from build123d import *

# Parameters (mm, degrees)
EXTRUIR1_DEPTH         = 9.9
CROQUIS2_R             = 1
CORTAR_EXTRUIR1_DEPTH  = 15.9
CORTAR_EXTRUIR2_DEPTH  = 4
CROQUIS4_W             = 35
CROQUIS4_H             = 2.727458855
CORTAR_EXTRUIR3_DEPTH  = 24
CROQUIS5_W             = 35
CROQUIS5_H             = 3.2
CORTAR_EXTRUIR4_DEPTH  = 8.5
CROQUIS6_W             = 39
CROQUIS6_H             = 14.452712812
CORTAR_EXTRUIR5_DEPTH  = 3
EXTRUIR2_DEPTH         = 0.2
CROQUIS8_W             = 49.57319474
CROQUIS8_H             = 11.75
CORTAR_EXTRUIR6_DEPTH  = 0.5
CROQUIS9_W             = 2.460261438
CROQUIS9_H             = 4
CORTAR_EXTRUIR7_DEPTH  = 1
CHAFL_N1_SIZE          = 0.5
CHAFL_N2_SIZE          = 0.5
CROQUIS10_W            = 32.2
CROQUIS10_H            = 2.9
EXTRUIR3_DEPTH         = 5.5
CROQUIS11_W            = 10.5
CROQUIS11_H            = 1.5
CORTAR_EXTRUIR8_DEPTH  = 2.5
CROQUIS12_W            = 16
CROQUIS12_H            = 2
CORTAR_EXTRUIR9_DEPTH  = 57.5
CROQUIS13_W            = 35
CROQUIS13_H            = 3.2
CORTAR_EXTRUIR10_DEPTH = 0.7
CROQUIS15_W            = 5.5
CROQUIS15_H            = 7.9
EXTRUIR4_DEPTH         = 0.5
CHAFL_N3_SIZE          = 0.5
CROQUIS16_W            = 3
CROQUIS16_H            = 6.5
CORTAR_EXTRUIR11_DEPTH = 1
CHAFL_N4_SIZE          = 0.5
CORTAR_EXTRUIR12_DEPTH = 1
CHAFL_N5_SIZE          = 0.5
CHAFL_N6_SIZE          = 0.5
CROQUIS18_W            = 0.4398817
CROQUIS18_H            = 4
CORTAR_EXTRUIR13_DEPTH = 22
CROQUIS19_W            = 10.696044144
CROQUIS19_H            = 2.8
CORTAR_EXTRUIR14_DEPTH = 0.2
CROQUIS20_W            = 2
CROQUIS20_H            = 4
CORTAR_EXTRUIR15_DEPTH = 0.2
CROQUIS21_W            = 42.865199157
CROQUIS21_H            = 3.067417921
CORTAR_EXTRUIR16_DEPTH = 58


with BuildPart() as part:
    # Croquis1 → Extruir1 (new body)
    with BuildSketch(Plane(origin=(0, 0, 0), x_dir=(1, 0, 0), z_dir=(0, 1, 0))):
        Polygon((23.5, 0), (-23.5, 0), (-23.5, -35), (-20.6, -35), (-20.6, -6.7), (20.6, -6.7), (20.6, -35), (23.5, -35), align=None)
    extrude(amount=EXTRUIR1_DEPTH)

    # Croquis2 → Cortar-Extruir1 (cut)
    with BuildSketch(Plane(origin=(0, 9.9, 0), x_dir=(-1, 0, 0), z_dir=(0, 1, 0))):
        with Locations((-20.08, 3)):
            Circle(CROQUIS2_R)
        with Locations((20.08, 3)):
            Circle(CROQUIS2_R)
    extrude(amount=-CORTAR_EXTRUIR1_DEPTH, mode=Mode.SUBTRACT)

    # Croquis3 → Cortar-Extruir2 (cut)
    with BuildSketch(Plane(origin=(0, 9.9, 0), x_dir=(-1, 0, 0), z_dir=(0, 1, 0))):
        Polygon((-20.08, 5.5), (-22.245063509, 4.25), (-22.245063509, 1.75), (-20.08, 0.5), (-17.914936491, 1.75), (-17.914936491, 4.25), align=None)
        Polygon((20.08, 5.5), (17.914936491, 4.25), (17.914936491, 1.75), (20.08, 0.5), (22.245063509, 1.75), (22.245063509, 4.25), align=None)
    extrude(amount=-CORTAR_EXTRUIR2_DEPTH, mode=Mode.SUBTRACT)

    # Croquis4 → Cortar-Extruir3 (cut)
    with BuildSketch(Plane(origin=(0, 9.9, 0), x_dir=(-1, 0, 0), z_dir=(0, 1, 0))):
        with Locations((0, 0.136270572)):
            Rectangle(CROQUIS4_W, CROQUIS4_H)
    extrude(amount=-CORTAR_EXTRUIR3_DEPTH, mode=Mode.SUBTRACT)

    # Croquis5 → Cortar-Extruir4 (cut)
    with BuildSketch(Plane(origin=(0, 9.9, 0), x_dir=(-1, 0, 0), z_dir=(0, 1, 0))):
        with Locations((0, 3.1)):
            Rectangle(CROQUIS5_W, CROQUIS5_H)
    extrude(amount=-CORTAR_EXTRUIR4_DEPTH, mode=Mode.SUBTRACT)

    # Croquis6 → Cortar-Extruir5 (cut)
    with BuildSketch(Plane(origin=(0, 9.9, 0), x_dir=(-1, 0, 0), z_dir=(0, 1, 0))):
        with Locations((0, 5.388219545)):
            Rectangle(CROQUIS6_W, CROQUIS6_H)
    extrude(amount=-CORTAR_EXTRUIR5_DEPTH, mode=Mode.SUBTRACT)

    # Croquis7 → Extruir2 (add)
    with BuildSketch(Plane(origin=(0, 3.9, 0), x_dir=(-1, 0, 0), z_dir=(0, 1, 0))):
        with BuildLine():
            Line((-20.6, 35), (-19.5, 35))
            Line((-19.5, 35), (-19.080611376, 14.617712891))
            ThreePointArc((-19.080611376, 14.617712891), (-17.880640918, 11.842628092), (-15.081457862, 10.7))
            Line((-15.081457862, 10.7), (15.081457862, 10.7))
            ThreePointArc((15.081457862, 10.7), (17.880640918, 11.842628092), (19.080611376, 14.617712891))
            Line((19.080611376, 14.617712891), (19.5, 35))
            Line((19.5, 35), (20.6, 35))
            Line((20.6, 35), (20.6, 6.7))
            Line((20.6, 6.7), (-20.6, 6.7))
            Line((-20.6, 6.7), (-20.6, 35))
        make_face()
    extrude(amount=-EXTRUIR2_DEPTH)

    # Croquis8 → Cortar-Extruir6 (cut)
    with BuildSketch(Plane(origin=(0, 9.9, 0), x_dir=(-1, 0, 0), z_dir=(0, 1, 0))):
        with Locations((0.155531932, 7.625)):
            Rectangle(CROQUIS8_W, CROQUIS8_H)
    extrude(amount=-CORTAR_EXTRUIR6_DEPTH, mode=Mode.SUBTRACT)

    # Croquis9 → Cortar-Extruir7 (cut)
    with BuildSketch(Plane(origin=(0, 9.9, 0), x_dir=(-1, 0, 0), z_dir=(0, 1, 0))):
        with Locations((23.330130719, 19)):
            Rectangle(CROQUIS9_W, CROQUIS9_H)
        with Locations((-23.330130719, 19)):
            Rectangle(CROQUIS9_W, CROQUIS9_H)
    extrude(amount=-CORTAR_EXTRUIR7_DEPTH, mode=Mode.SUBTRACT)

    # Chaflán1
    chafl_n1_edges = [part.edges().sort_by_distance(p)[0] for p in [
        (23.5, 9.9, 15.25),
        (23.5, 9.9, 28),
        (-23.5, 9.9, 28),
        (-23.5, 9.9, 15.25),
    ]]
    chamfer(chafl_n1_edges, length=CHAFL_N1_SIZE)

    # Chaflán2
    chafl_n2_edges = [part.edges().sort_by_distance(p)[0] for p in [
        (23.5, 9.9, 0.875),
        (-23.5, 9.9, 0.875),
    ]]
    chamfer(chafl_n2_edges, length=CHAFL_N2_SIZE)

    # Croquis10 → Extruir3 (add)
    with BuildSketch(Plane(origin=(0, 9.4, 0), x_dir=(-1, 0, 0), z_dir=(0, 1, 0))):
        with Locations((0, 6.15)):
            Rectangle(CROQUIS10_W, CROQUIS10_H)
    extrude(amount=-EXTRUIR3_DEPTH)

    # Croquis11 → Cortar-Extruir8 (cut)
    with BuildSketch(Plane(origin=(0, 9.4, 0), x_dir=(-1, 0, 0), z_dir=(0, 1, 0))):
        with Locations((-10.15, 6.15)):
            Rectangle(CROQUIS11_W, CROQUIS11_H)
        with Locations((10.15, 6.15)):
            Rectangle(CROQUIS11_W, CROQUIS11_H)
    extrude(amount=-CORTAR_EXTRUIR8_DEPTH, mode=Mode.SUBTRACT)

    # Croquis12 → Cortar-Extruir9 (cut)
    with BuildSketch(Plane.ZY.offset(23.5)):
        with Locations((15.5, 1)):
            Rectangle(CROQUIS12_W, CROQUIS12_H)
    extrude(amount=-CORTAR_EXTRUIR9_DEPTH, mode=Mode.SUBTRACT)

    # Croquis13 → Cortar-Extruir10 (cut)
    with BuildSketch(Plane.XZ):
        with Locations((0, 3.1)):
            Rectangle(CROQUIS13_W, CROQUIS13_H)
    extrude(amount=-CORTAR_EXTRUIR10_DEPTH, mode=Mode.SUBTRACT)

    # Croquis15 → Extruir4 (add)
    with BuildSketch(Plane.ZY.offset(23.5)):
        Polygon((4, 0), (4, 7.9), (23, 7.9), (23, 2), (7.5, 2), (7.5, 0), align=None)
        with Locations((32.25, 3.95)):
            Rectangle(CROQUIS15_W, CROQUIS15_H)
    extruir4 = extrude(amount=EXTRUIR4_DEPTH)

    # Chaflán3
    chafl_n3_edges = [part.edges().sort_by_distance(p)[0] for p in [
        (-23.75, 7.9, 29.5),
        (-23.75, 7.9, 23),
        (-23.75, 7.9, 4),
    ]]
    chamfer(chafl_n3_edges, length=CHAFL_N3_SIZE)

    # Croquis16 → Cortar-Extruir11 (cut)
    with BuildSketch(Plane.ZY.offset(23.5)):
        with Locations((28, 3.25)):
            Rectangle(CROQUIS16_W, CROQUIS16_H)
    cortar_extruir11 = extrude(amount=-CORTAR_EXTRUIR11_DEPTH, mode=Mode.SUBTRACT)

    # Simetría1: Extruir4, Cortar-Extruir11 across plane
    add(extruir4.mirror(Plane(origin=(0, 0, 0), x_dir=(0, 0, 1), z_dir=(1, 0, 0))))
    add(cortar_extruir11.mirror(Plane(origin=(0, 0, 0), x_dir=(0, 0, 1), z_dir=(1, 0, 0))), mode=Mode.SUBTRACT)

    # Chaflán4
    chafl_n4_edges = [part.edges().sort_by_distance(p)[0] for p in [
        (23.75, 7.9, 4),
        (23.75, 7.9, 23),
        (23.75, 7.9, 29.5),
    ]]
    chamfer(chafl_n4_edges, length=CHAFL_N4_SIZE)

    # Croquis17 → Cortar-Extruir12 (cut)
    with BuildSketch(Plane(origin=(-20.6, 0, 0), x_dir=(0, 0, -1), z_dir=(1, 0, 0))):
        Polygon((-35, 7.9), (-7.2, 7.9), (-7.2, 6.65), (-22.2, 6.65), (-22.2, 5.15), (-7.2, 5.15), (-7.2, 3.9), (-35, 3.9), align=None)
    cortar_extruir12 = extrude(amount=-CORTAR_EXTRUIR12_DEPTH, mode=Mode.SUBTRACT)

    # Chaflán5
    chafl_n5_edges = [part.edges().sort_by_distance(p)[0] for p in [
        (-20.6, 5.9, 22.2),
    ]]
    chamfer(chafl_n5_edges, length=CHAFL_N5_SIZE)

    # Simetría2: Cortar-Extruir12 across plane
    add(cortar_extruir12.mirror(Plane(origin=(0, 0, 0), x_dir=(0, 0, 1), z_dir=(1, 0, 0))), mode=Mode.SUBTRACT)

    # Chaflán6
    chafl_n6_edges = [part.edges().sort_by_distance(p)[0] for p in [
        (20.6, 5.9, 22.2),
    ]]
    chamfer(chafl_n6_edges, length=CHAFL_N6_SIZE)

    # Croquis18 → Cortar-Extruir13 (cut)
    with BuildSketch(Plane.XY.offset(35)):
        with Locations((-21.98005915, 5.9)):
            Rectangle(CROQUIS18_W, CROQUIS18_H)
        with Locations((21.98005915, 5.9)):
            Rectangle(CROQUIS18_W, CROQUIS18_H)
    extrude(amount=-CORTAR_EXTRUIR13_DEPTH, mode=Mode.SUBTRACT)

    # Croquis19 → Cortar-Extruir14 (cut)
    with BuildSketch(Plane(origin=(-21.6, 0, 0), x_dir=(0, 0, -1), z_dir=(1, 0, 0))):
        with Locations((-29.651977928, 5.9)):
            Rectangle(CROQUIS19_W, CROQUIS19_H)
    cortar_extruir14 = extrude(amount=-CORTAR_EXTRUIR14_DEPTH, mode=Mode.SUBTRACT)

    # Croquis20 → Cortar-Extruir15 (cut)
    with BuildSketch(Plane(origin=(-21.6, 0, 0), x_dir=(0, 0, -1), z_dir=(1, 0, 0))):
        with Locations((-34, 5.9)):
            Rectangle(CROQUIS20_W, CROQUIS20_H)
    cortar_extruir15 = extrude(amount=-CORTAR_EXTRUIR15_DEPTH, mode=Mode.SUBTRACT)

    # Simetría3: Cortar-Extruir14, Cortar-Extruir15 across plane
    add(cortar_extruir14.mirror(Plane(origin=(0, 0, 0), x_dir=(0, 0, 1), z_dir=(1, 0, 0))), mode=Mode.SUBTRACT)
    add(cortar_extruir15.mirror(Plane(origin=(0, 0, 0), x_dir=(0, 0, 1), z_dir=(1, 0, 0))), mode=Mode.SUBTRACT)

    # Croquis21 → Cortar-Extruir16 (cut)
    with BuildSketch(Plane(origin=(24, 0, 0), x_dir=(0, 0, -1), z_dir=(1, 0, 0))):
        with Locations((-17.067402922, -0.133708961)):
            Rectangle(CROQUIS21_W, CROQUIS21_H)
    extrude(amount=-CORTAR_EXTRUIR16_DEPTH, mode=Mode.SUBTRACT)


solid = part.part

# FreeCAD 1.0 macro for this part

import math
import FreeCAD as App
import Part
import Sketcher

V = App.Vector
Q = App.Units.Quantity


def edges_at(feature, points):
    """Names of the edges that pass closest to the given points."""
    edges = feature.Shape.Edges
    near = lambda p: min(range(len(edges)), key=lambda i: edges[i].distToShape(Part.Vertex(*p))[0])
    return sorted({f"Edge{near(p) + 1}" for p in points})

doc = App.newDocument("Part")
body = doc.addObject("PartDesign::Body", "Body")

# Sketch on XZ plane
sketch1 = body.newObject("Sketcher::SketchObject", "Sketch")
sketch1.AttachmentSupport = (doc.getObject("XZ_Plane"), [""])
sketch1.MapMode = "FlatFace"
sketch1.addGeometry(Part.LineSegment(V(23.5, 0, 0), V(-23.5, 0, 0)), False)
sketch1.addGeometry(Part.LineSegment(V(-23.5, 0, 0), V(-23.5, 35, 0)), False)
sketch1.addGeometry(Part.LineSegment(V(-23.5, 35, 0), V(-20.6, 35, 0)), False)
sketch1.addGeometry(Part.LineSegment(V(-20.6, 35, 0), V(-20.6, 6.7, 0)), False)
sketch1.addGeometry(Part.LineSegment(V(-20.6, 6.7, 0), V(20.6, 6.7, 0)), False)
sketch1.addGeometry(Part.LineSegment(V(20.6, 6.7, 0), V(20.6, 35, 0)), False)
sketch1.addGeometry(Part.LineSegment(V(20.6, 35, 0), V(23.5, 35, 0)), False)
sketch1.addGeometry(Part.LineSegment(V(23.5, 35, 0), V(23.5, 0, 0)), False)
sketch1.addConstraint(Sketcher.Constraint("Coincident", 0, 2, 1, 1))
sketch1.addConstraint(Sketcher.Constraint("Coincident", 1, 2, 2, 1))
sketch1.addConstraint(Sketcher.Constraint("Coincident", 2, 2, 3, 1))
sketch1.addConstraint(Sketcher.Constraint("Coincident", 3, 2, 4, 1))
sketch1.addConstraint(Sketcher.Constraint("Coincident", 4, 2, 5, 1))
sketch1.addConstraint(Sketcher.Constraint("Coincident", 5, 2, 6, 1))
sketch1.addConstraint(Sketcher.Constraint("Coincident", 6, 2, 7, 1))
sketch1.addConstraint(Sketcher.Constraint("Coincident", 7, 2, 0, 1))
sketch1.addConstraint(Sketcher.Constraint("Horizontal", 0))
sketch1.addConstraint(Sketcher.Constraint("Vertical", 1))
sketch1.addConstraint(Sketcher.Constraint("Horizontal", 2))
sketch1.addConstraint(Sketcher.Constraint("Vertical", 3))
sketch1.addConstraint(Sketcher.Constraint("Horizontal", 4))
sketch1.addConstraint(Sketcher.Constraint("Vertical", 5))
sketch1.addConstraint(Sketcher.Constraint("Horizontal", 6))
sketch1.addConstraint(Sketcher.Constraint("Vertical", 7))
sketch1.addConstraint(Sketcher.Constraint("Symmetric", 0, 2, 7, 2, -1, 1))
sketch1.addConstraint(Sketcher.Constraint("Symmetric", 2, 2, 5, 2, -2))
sketch1.addConstraint(Sketcher.Constraint("DistanceX", 0, 2, 0, 1, 47.0))
sketch1.addConstraint(Sketcher.Constraint("DistanceY", 1, 1, 1, 2, 35.0))
sketch1.addConstraint(Sketcher.Constraint("DistanceX", 2, 1, 2, 2, 2.9))
sketch1.addConstraint(Sketcher.Constraint("DistanceY", 3, 2, 3, 1, 28.3))
pad1 = body.newObject("PartDesign::Pad", "Pad")
pad1.Profile = sketch1
pad1.Length = 9.9
pad1.Reversed = True

# Sketch on XZ plane
sketch2 = body.newObject("Sketcher::SketchObject", "Sketch001")
sketch2.AttachmentSupport = (doc.getObject("XZ_Plane"), [""])
sketch2.MapMode = "FlatFace"
sketch2.AttachmentOffset = App.Placement(V(0, 0, -9.9), App.Rotation())
sketch2.addGeometry(Part.Circle(V(20.08, 3, 0), V(0, 0, 1), 1), False)
sketch2.addGeometry(Part.Circle(V(-20.08, 3, 0), V(0, 0, 1), 1), False)
sketch2.addConstraint(Sketcher.Constraint("Equal", 0, 1))
sketch2.addConstraint(Sketcher.Constraint("Symmetric", 0, 3, 1, 3, -2))
sketch2.addConstraint(Sketcher.Constraint("Diameter", 0, 2.0))
sketch2.addConstraint(Sketcher.Constraint("DistanceY", -1, 1, 0, 3, 3.0))
sketch2.addConstraint(Sketcher.Constraint("DistanceX", -1, 1, 0, 3, 20.08))
pocket1 = body.newObject("PartDesign::Pocket", "Pocket")
pocket1.Profile = sketch2
pocket1.Length = 15.9
pocket1.Reversed = True

# Sketch on XZ plane
sketch3 = body.newObject("Sketcher::SketchObject", "Sketch002")
sketch3.AttachmentSupport = (doc.getObject("XZ_Plane"), [""])
sketch3.MapMode = "FlatFace"
sketch3.AttachmentOffset = App.Placement(V(0, 0, -9.9), App.Rotation())
sketch3.addGeometry(Part.LineSegment(V(20.08, 5.5, 0), V(22.245064, 4.25, 0)), False)
sketch3.addGeometry(Part.LineSegment(V(22.245064, 4.25, 0), V(22.245064, 1.75, 0)), False)
sketch3.addGeometry(Part.LineSegment(V(22.245064, 1.75, 0), V(20.08, 0.5, 0)), False)
sketch3.addGeometry(Part.LineSegment(V(20.08, 0.5, 0), V(17.914936, 1.75, 0)), False)
sketch3.addGeometry(Part.LineSegment(V(17.914936, 1.75, 0), V(17.914936, 4.25, 0)), False)
sketch3.addGeometry(Part.LineSegment(V(17.914936, 4.25, 0), V(20.08, 5.5, 0)), False)
sketch3.addGeometry(Part.LineSegment(V(-20.08, 5.5, 0), V(-17.914936, 4.25, 0)), False)
sketch3.addGeometry(Part.LineSegment(V(-17.914936, 4.25, 0), V(-17.914936, 1.75, 0)), False)
sketch3.addGeometry(Part.LineSegment(V(-17.914936, 1.75, 0), V(-20.08, 0.5, 0)), False)
sketch3.addGeometry(Part.LineSegment(V(-20.08, 0.5, 0), V(-22.245064, 1.75, 0)), False)
sketch3.addGeometry(Part.LineSegment(V(-22.245064, 1.75, 0), V(-22.245064, 4.25, 0)), False)
sketch3.addGeometry(Part.LineSegment(V(-22.245064, 4.25, 0), V(-20.08, 5.5, 0)), False)
sketch3.addConstraint(Sketcher.Constraint("Coincident", 0, 2, 1, 1))
sketch3.addConstraint(Sketcher.Constraint("Coincident", 1, 2, 2, 1))
sketch3.addConstraint(Sketcher.Constraint("Coincident", 2, 2, 3, 1))
sketch3.addConstraint(Sketcher.Constraint("Coincident", 3, 2, 4, 1))
sketch3.addConstraint(Sketcher.Constraint("Coincident", 4, 2, 5, 1))
sketch3.addConstraint(Sketcher.Constraint("Coincident", 5, 2, 0, 1))
sketch3.addConstraint(Sketcher.Constraint("Coincident", 6, 2, 7, 1))
sketch3.addConstraint(Sketcher.Constraint("Coincident", 7, 2, 8, 1))
sketch3.addConstraint(Sketcher.Constraint("Coincident", 8, 2, 9, 1))
sketch3.addConstraint(Sketcher.Constraint("Coincident", 9, 2, 10, 1))
sketch3.addConstraint(Sketcher.Constraint("Coincident", 10, 2, 11, 1))
sketch3.addConstraint(Sketcher.Constraint("Coincident", 11, 2, 6, 1))
sketch3.addConstraint(Sketcher.Constraint("Vertical", 1))
sketch3.addConstraint(Sketcher.Constraint("Vertical", 4))
sketch3.addConstraint(Sketcher.Constraint("Vertical", 7))
sketch3.addConstraint(Sketcher.Constraint("Vertical", 10))
sketch3.addConstraint(Sketcher.Constraint("Symmetric", 4, 2, 6, 2, -2))
sketch3.addConstraint(Sketcher.Constraint("Symmetric", 2, 2, 8, 2, -2))
sketch3.addConstraint(Sketcher.Constraint("Symmetric", 1, 2, 9, 2, -2))
sketch3.addConstraint(Sketcher.Constraint("Symmetric", 5, 2, 11, 2, -2))
sketch3.addConstraint(Sketcher.Constraint("Parallel", 0, 3))
sketch3.addConstraint(Sketcher.Constraint("Parallel", 2, 5))
sketch3.addConstraint(Sketcher.Constraint("Parallel", 3, 6))
sketch3.addConstraint(Sketcher.Constraint("Parallel", 5, 8))
sketch3.addConstraint(Sketcher.Constraint("Parallel", 8, 11))
sketch3.addConstraint(Sketcher.Constraint("Horizontal", 1, 2, 3, 2))
sketch3.addConstraint(Sketcher.Constraint("Horizontal", 0, 2, 4, 2))
sketch3.addConstraint(Sketcher.Constraint("Angle", 0, Q("-30 deg")))
sketch3.addConstraint(Sketcher.Constraint("DistanceY", 1, 2, 1, 1, 2.5))
sketch3.addConstraint(Sketcher.Constraint("DistanceY", 2, 2, 5, 2, 5.0))
sketch3.addConstraint(Sketcher.Constraint("DistanceY", -1, 1, 2, 2, 0.5))
sketch3.addConstraint(Sketcher.Constraint("DistanceX", -1, 1, 2, 2, 20.08))
pocket2 = body.newObject("PartDesign::Pocket", "Pocket001")
pocket2.Profile = sketch3
pocket2.Length = 4
pocket2.Reversed = True

# Sketch on XZ plane
sketch4 = body.newObject("Sketcher::SketchObject", "Sketch003")
sketch4.AttachmentSupport = (doc.getObject("XZ_Plane"), [""])
sketch4.MapMode = "FlatFace"
sketch4.AttachmentOffset = App.Placement(V(0, 0, -9.9), App.Rotation())
sketch4.addGeometry(Part.LineSegment(V(17.5, 1.5, 0), V(17.5, -1.227459, 0)), False)
sketch4.addGeometry(Part.LineSegment(V(17.5, -1.227459, 0), V(-17.5, -1.227459, 0)), False)
sketch4.addGeometry(Part.LineSegment(V(-17.5, -1.227459, 0), V(-17.5, 1.5, 0)), False)
sketch4.addGeometry(Part.LineSegment(V(-17.5, 1.5, 0), V(17.5, 1.5, 0)), False)
sketch4.addConstraint(Sketcher.Constraint("Coincident", 0, 2, 1, 1))
sketch4.addConstraint(Sketcher.Constraint("Coincident", 1, 2, 2, 1))
sketch4.addConstraint(Sketcher.Constraint("Coincident", 2, 2, 3, 1))
sketch4.addConstraint(Sketcher.Constraint("Coincident", 3, 2, 0, 1))
sketch4.addConstraint(Sketcher.Constraint("Vertical", 0))
sketch4.addConstraint(Sketcher.Constraint("Horizontal", 1))
sketch4.addConstraint(Sketcher.Constraint("Vertical", 2))
sketch4.addConstraint(Sketcher.Constraint("Horizontal", 3))
sketch4.addConstraint(Sketcher.Constraint("DistanceX", 1, 2, 1, 1, 35.0))
sketch4.addConstraint(Sketcher.Constraint("DistanceX", -1, 1, 0, 2, 17.5))
sketch4.addConstraint(Sketcher.Constraint("DistanceY", -1, 1, 2, 2, 1.5))
sketch4.addConstraint(Sketcher.Constraint("DistanceY", 0, 2, 0, 1, 2.727459))
pocket3 = body.newObject("PartDesign::Pocket", "Pocket002")
pocket3.Profile = sketch4
pocket3.Length = 24
pocket3.Reversed = True

# Sketch on XZ plane
sketch5 = body.newObject("Sketcher::SketchObject", "Sketch004")
sketch5.AttachmentSupport = (doc.getObject("XZ_Plane"), [""])
sketch5.MapMode = "FlatFace"
sketch5.AttachmentOffset = App.Placement(V(0, 0, -9.9), App.Rotation())
sketch5.addGeometry(Part.LineSegment(V(17.5, 4.7, 0), V(17.5, 1.5, 0)), False)
sketch5.addGeometry(Part.LineSegment(V(17.5, 1.5, 0), V(-17.5, 1.5, 0)), False)
sketch5.addGeometry(Part.LineSegment(V(-17.5, 1.5, 0), V(-17.5, 4.7, 0)), False)
sketch5.addGeometry(Part.LineSegment(V(-17.5, 4.7, 0), V(17.5, 4.7, 0)), False)
sketch5.addConstraint(Sketcher.Constraint("Coincident", 0, 2, 1, 1))
sketch5.addConstraint(Sketcher.Constraint("Coincident", 1, 2, 2, 1))
sketch5.addConstraint(Sketcher.Constraint("Coincident", 2, 2, 3, 1))
sketch5.addConstraint(Sketcher.Constraint("Coincident", 3, 2, 0, 1))
sketch5.addConstraint(Sketcher.Constraint("Vertical", 0))
sketch5.addConstraint(Sketcher.Constraint("Horizontal", 1))
sketch5.addConstraint(Sketcher.Constraint("Vertical", 2))
sketch5.addConstraint(Sketcher.Constraint("Horizontal", 3))
sketch5.addConstraint(Sketcher.Constraint("DistanceX", 1, 2, 1, 1, 35.0))
sketch5.addConstraint(Sketcher.Constraint("DistanceY", 0, 2, 0, 1, 3.2))
sketch5.addConstraint(Sketcher.Constraint("DistanceX", -1, 1, 0, 2, 17.5))
sketch5.addConstraint(Sketcher.Constraint("DistanceY", -1, 1, 0, 2, 1.5))
pocket4 = body.newObject("PartDesign::Pocket", "Pocket003")
pocket4.Profile = sketch5
pocket4.Length = 8.5
pocket4.Reversed = True

# Sketch on XZ plane
sketch6 = body.newObject("Sketcher::SketchObject", "Sketch005")
sketch6.AttachmentSupport = (doc.getObject("XZ_Plane"), [""])
sketch6.MapMode = "FlatFace"
sketch6.AttachmentOffset = App.Placement(V(0, 0, -9.9), App.Rotation())
sketch6.addGeometry(Part.LineSegment(V(19.5, 12.614576, 0), V(19.5, -1.838137, 0)), False)
sketch6.addGeometry(Part.LineSegment(V(19.5, -1.838137, 0), V(-19.5, -1.838137, 0)), False)
sketch6.addGeometry(Part.LineSegment(V(-19.5, -1.838137, 0), V(-19.5, 12.614576, 0)), False)
sketch6.addGeometry(Part.LineSegment(V(-19.5, 12.614576, 0), V(19.5, 12.614576, 0)), False)
sketch6.addConstraint(Sketcher.Constraint("Coincident", 0, 2, 1, 1))
sketch6.addConstraint(Sketcher.Constraint("Coincident", 1, 2, 2, 1))
sketch6.addConstraint(Sketcher.Constraint("Coincident", 2, 2, 3, 1))
sketch6.addConstraint(Sketcher.Constraint("Coincident", 3, 2, 0, 1))
sketch6.addConstraint(Sketcher.Constraint("Vertical", 0))
sketch6.addConstraint(Sketcher.Constraint("Horizontal", 1))
sketch6.addConstraint(Sketcher.Constraint("Vertical", 2))
sketch6.addConstraint(Sketcher.Constraint("Horizontal", 3))
sketch6.addConstraint(Sketcher.Constraint("DistanceX", 1, 2, 1, 1, 39.0))
sketch6.addConstraint(Sketcher.Constraint("DistanceX", -1, 1, 0, 2, 19.5))
sketch6.addConstraint(Sketcher.Constraint("DistanceY", 0, 2, 0, 1, 14.452713))
sketch6.addConstraint(Sketcher.Constraint("DistanceY", 0, 2, -1, 1, 1.838137))
pocket5 = body.newObject("PartDesign::Pocket", "Pocket004")
pocket5.Profile = sketch6
pocket5.Length = 3
pocket5.Reversed = True

# Sketch on XZ plane
sketch7 = body.newObject("Sketcher::SketchObject", "Sketch006")
sketch7.AttachmentSupport = (doc.getObject("XZ_Plane"), [""])
sketch7.MapMode = "FlatFace"
sketch7.AttachmentOffset = App.Placement(V(0, 0, -3.9), App.Rotation())
sketch7.addGeometry(Part.LineSegment(V(19.5, 35, 0), V(20.6, 35, 0)), False)
sketch7.addGeometry(Part.LineSegment(V(20.6, 35, 0), V(20.6, 6.7, 0)), False)
sketch7.addGeometry(Part.LineSegment(V(20.6, 6.7, 0), V(-20.6, 6.7, 0)), False)
sketch7.addGeometry(Part.LineSegment(V(-20.6, 6.7, 0), V(-20.6, 35, 0)), False)
sketch7.addGeometry(Part.LineSegment(V(-20.6, 35, 0), V(-19.5, 35, 0)), False)
sketch7.addGeometry(Part.LineSegment(V(-19.5, 35, 0), V(-19.080611, 14.617713, 0)), False)
sketch7.addGeometry(Part.ArcOfCircle(Part.Circle(V(-15.081458, 14.7, 0), V(0, 0, 1), 4), math.radians(-178.821241), math.radians(-90)), False)
sketch7.addGeometry(Part.LineSegment(V(-15.081458, 10.7, 0), V(15.081458, 10.7, 0)), False)
sketch7.addGeometry(Part.ArcOfCircle(Part.Circle(V(15.081458, 14.7, 0), V(0, 0, 1), 4), math.radians(-90), math.radians(-1.178759)), False)
sketch7.addGeometry(Part.LineSegment(V(19.080611, 14.617713, 0), V(19.5, 35, 0)), False)
sketch7.addConstraint(Sketcher.Constraint("Coincident", 0, 2, 1, 1))
sketch7.addConstraint(Sketcher.Constraint("Coincident", 1, 2, 2, 1))
sketch7.addConstraint(Sketcher.Constraint("Coincident", 2, 2, 3, 1))
sketch7.addConstraint(Sketcher.Constraint("Coincident", 3, 2, 4, 1))
sketch7.addConstraint(Sketcher.Constraint("Coincident", 4, 2, 5, 1))
sketch7.addConstraint(Sketcher.Constraint("Tangent", 5, 2, 6, 1))
sketch7.addConstraint(Sketcher.Constraint("Tangent", 6, 2, 7, 1))
sketch7.addConstraint(Sketcher.Constraint("Tangent", 7, 2, 8, 1))
sketch7.addConstraint(Sketcher.Constraint("Tangent", 8, 2, 9, 1))
sketch7.addConstraint(Sketcher.Constraint("Coincident", 9, 2, 0, 1))
sketch7.addConstraint(Sketcher.Constraint("Horizontal", 0))
sketch7.addConstraint(Sketcher.Constraint("Vertical", 1))
sketch7.addConstraint(Sketcher.Constraint("Horizontal", 2))
sketch7.addConstraint(Sketcher.Constraint("Vertical", 3))
sketch7.addConstraint(Sketcher.Constraint("Horizontal", 4))
sketch7.addConstraint(Sketcher.Constraint("Horizontal", 7))
sketch7.addConstraint(Sketcher.Constraint("Equal", 6, 8))
sketch7.addConstraint(Sketcher.Constraint("Symmetric", 0, 2, 3, 2, -2))
sketch7.addConstraint(Sketcher.Constraint("Symmetric", 5, 2, 8, 2, -2))
sketch7.addConstraint(Sketcher.Constraint("Radius", 6, 4.0))
sketch7.addConstraint(Sketcher.Constraint("DistanceX", 0, 1, 0, 2, 1.1))
sketch7.addConstraint(Sketcher.Constraint("DistanceX", 2, 2, 2, 1, 41.2))
sketch7.addConstraint(Sketcher.Constraint("DistanceY", 1, 2, 1, 1, 28.3))
sketch7.addConstraint(Sketcher.Constraint("DistanceY", -1, 1, 0, 2, 35.0))
sketch7.addConstraint(Sketcher.Constraint("DistanceY", 1, 2, 8, 3, 8.0))
sketch7.addConstraint(Sketcher.Constraint("Distance", 5, 20.386601))
pad2 = body.newObject("PartDesign::Pad", "Pad001")
pad2.Profile = sketch7
pad2.Length = 0.2

# Sketch on XZ plane
sketch8 = body.newObject("Sketcher::SketchObject", "Sketch007")
sketch8.AttachmentSupport = (doc.getObject("XZ_Plane"), [""])
sketch8.MapMode = "FlatFace"
sketch8.AttachmentOffset = App.Placement(V(0, 0, -9.9), App.Rotation())
sketch8.addGeometry(Part.LineSegment(V(24.631065, 13.5, 0), V(24.631065, 1.75, 0)), False)
sketch8.addGeometry(Part.LineSegment(V(24.631065, 1.75, 0), V(-24.942129, 1.75, 0)), False)
sketch8.addGeometry(Part.LineSegment(V(-24.942129, 1.75, 0), V(-24.942129, 13.5, 0)), False)
sketch8.addGeometry(Part.LineSegment(V(-24.942129, 13.5, 0), V(24.631065, 13.5, 0)), False)
sketch8.addConstraint(Sketcher.Constraint("Coincident", 0, 2, 1, 1))
sketch8.addConstraint(Sketcher.Constraint("Coincident", 1, 2, 2, 1))
sketch8.addConstraint(Sketcher.Constraint("Coincident", 2, 2, 3, 1))
sketch8.addConstraint(Sketcher.Constraint("Coincident", 3, 2, 0, 1))
sketch8.addConstraint(Sketcher.Constraint("Vertical", 0))
sketch8.addConstraint(Sketcher.Constraint("Horizontal", 1))
sketch8.addConstraint(Sketcher.Constraint("Vertical", 2))
sketch8.addConstraint(Sketcher.Constraint("Horizontal", 3))
sketch8.addConstraint(Sketcher.Constraint("DistanceY", 0, 2, 0, 1, 11.75))
sketch8.addConstraint(Sketcher.Constraint("DistanceY", -1, 1, 2, 2, 13.5))
sketch8.addConstraint(Sketcher.Constraint("DistanceX", 1, 2, 1, 1, 49.573195))
sketch8.addConstraint(Sketcher.Constraint("DistanceX", 1, 2, -1, 1, 24.942129))
pocket6 = body.newObject("PartDesign::Pocket", "Pocket005")
pocket6.Profile = sketch8
pocket6.Length = 0.5
pocket6.Reversed = True

# Sketch on XZ plane
sketch9 = body.newObject("Sketcher::SketchObject", "Sketch008")
sketch9.AttachmentSupport = (doc.getObject("XZ_Plane"), [""])
sketch9.MapMode = "FlatFace"
sketch9.AttachmentOffset = App.Placement(V(0, 0, -9.9), App.Rotation())
sketch9.addGeometry(Part.LineSegment(V(-22.1, 21, 0), V(-22.1, 17, 0)), False)
sketch9.addGeometry(Part.LineSegment(V(-22.1, 17, 0), V(-24.560261, 17, 0)), False)
sketch9.addGeometry(Part.LineSegment(V(-24.560261, 17, 0), V(-24.560261, 21, 0)), False)
sketch9.addGeometry(Part.LineSegment(V(-24.560261, 21, 0), V(-22.1, 21, 0)), False)
sketch9.addGeometry(Part.LineSegment(V(24.560261, 21, 0), V(24.560261, 17, 0)), False)
sketch9.addGeometry(Part.LineSegment(V(24.560261, 17, 0), V(22.1, 17, 0)), False)
sketch9.addGeometry(Part.LineSegment(V(22.1, 17, 0), V(22.1, 21, 0)), False)
sketch9.addGeometry(Part.LineSegment(V(22.1, 21, 0), V(24.560261, 21, 0)), False)
sketch9.addConstraint(Sketcher.Constraint("Coincident", 0, 2, 1, 1))
sketch9.addConstraint(Sketcher.Constraint("Coincident", 1, 2, 2, 1))
sketch9.addConstraint(Sketcher.Constraint("Coincident", 2, 2, 3, 1))
sketch9.addConstraint(Sketcher.Constraint("Coincident", 3, 2, 0, 1))
sketch9.addConstraint(Sketcher.Constraint("Coincident", 4, 2, 5, 1))
sketch9.addConstraint(Sketcher.Constraint("Coincident", 5, 2, 6, 1))
sketch9.addConstraint(Sketcher.Constraint("Coincident", 6, 2, 7, 1))
sketch9.addConstraint(Sketcher.Constraint("Coincident", 7, 2, 4, 1))
sketch9.addConstraint(Sketcher.Constraint("Vertical", 0))
sketch9.addConstraint(Sketcher.Constraint("Horizontal", 1))
sketch9.addConstraint(Sketcher.Constraint("Vertical", 2))
sketch9.addConstraint(Sketcher.Constraint("Horizontal", 3))
sketch9.addConstraint(Sketcher.Constraint("Vertical", 4))
sketch9.addConstraint(Sketcher.Constraint("Horizontal", 5))
sketch9.addConstraint(Sketcher.Constraint("Vertical", 6))
sketch9.addConstraint(Sketcher.Constraint("Horizontal", 7))
sketch9.addConstraint(Sketcher.Constraint("Symmetric", 1, 2, 4, 2, -2))
sketch9.addConstraint(Sketcher.Constraint("Symmetric", 3, 2, 6, 2, -2))
sketch9.addConstraint(Sketcher.Constraint("DistanceY", 0, 2, 0, 1, 4.0))
sketch9.addConstraint(Sketcher.Constraint("DistanceY", -1, 1, 0, 2, 17.0))
sketch9.addConstraint(Sketcher.Constraint("DistanceX", 0, 2, -1, 1, 22.1))
sketch9.addConstraint(Sketcher.Constraint("DistanceX", 1, 2, 1, 1, 2.460261))
pocket7 = body.newObject("PartDesign::Pocket", "Pocket006")
pocket7.Profile = sketch9
pocket7.Length = 1
pocket7.Reversed = True
doc.recompute()

chamfer = body.newObject("PartDesign::Chamfer", "Chamfer")
chamfer.Base = (pocket7, edges_at(pocket7, [
    (23.5, 9.9, 15.25),
    (23.5, 9.9, 28),
    (-23.5, 9.9, 28),
    (-23.5, 9.9, 15.25),
]))
chamfer.Size = 0.5
doc.recompute()

chamfer2 = body.newObject("PartDesign::Chamfer", "Chamfer001")
chamfer2.Base = (chamfer, edges_at(chamfer, [(23.5, 9.9, 0.875), (-23.5, 9.9, 0.875)]))
chamfer2.Size = 0.5

# Sketch on XZ plane
sketch10 = body.newObject("Sketcher::SketchObject", "Sketch009")
sketch10.AttachmentSupport = (doc.getObject("XZ_Plane"), [""])
sketch10.MapMode = "FlatFace"
sketch10.AttachmentOffset = App.Placement(V(0, 0, -9.4), App.Rotation())
sketch10.addGeometry(Part.LineSegment(V(16.1, 7.6, 0), V(16.1, 4.7, 0)), False)
sketch10.addGeometry(Part.LineSegment(V(16.1, 4.7, 0), V(-16.1, 4.7, 0)), False)
sketch10.addGeometry(Part.LineSegment(V(-16.1, 4.7, 0), V(-16.1, 7.6, 0)), False)
sketch10.addGeometry(Part.LineSegment(V(-16.1, 7.6, 0), V(16.1, 7.6, 0)), False)
sketch10.addConstraint(Sketcher.Constraint("Coincident", 0, 2, 1, 1))
sketch10.addConstraint(Sketcher.Constraint("Coincident", 1, 2, 2, 1))
sketch10.addConstraint(Sketcher.Constraint("Coincident", 2, 2, 3, 1))
sketch10.addConstraint(Sketcher.Constraint("Coincident", 3, 2, 0, 1))
sketch10.addConstraint(Sketcher.Constraint("Vertical", 0))
sketch10.addConstraint(Sketcher.Constraint("Horizontal", 1))
sketch10.addConstraint(Sketcher.Constraint("Vertical", 2))
sketch10.addConstraint(Sketcher.Constraint("Horizontal", 3))
sketch10.addConstraint(Sketcher.Constraint("DistanceX", 1, 2, 1, 1, 32.2))
sketch10.addConstraint(Sketcher.Constraint("DistanceY", 0, 2, 0, 1, 2.9))
sketch10.addConstraint(Sketcher.Constraint("DistanceX", -1, 1, 0, 2, 16.1))
sketch10.addConstraint(Sketcher.Constraint("DistanceY", -1, 1, 0, 2, 4.7))
pad3 = body.newObject("PartDesign::Pad", "Pad002")
pad3.Profile = sketch10
pad3.Length = 5.5

# Sketch on XZ plane
sketch11 = body.newObject("Sketcher::SketchObject", "Sketch010")
sketch11.AttachmentSupport = (doc.getObject("XZ_Plane"), [""])
sketch11.MapMode = "FlatFace"
sketch11.AttachmentOffset = App.Placement(V(0, 0, -9.4), App.Rotation())
sketch11.addGeometry(Part.LineSegment(V(15.4, 6.9, 0), V(15.4, 5.4, 0)), False)
sketch11.addGeometry(Part.LineSegment(V(15.4, 5.4, 0), V(4.9, 5.4, 0)), False)
sketch11.addGeometry(Part.LineSegment(V(4.9, 5.4, 0), V(4.9, 6.9, 0)), False)
sketch11.addGeometry(Part.LineSegment(V(4.9, 6.9, 0), V(15.4, 6.9, 0)), False)
sketch11.addGeometry(Part.LineSegment(V(-4.9, 6.9, 0), V(-4.9, 5.4, 0)), False)
sketch11.addGeometry(Part.LineSegment(V(-4.9, 5.4, 0), V(-15.4, 5.4, 0)), False)
sketch11.addGeometry(Part.LineSegment(V(-15.4, 5.4, 0), V(-15.4, 6.9, 0)), False)
sketch11.addGeometry(Part.LineSegment(V(-15.4, 6.9, 0), V(-4.9, 6.9, 0)), False)
sketch11.addConstraint(Sketcher.Constraint("Coincident", 0, 2, 1, 1))
sketch11.addConstraint(Sketcher.Constraint("Coincident", 1, 2, 2, 1))
sketch11.addConstraint(Sketcher.Constraint("Coincident", 2, 2, 3, 1))
sketch11.addConstraint(Sketcher.Constraint("Coincident", 3, 2, 0, 1))
sketch11.addConstraint(Sketcher.Constraint("Coincident", 4, 2, 5, 1))
sketch11.addConstraint(Sketcher.Constraint("Coincident", 5, 2, 6, 1))
sketch11.addConstraint(Sketcher.Constraint("Coincident", 6, 2, 7, 1))
sketch11.addConstraint(Sketcher.Constraint("Coincident", 7, 2, 4, 1))
sketch11.addConstraint(Sketcher.Constraint("Vertical", 0))
sketch11.addConstraint(Sketcher.Constraint("Horizontal", 1))
sketch11.addConstraint(Sketcher.Constraint("Vertical", 2))
sketch11.addConstraint(Sketcher.Constraint("Horizontal", 3))
sketch11.addConstraint(Sketcher.Constraint("Vertical", 4))
sketch11.addConstraint(Sketcher.Constraint("Horizontal", 5))
sketch11.addConstraint(Sketcher.Constraint("Vertical", 6))
sketch11.addConstraint(Sketcher.Constraint("Horizontal", 7))
sketch11.addConstraint(Sketcher.Constraint("Symmetric", 1, 2, 4, 2, -2))
sketch11.addConstraint(Sketcher.Constraint("Symmetric", 3, 2, 6, 2, -2))
sketch11.addConstraint(Sketcher.Constraint("DistanceX", 1, 2, 1, 1, 10.5))
sketch11.addConstraint(Sketcher.Constraint("DistanceY", 0, 2, 0, 1, 1.5))
sketch11.addConstraint(Sketcher.Constraint("DistanceX", -1, 1, 0, 2, 15.4))
sketch11.addConstraint(Sketcher.Constraint("DistanceY", -1, 1, 0, 2, 5.4))
pocket8 = body.newObject("PartDesign::Pocket", "Pocket007")
pocket8.Profile = sketch11
pocket8.Length = 2.5
pocket8.Reversed = True

# Sketch on YZ plane
sketch12 = body.newObject("Sketcher::SketchObject", "Sketch011")
sketch12.AttachmentSupport = (doc.getObject("YZ_Plane"), [""])
sketch12.MapMode = "FlatFace"
sketch12.AttachmentOffset = App.Placement(V(0, 0, -23.5), App.Rotation())
sketch12.addGeometry(Part.LineSegment(V(2, 7.5, 0), V(0, 7.5, 0)), False)
sketch12.addGeometry(Part.LineSegment(V(0, 7.5, 0), V(0, 23.5, 0)), False)
sketch12.addGeometry(Part.LineSegment(V(0, 23.5, 0), V(2, 23.5, 0)), False)
sketch12.addGeometry(Part.LineSegment(V(2, 23.5, 0), V(2, 7.5, 0)), False)
sketch12.addConstraint(Sketcher.Constraint("Coincident", 0, 2, 1, 1))
sketch12.addConstraint(Sketcher.Constraint("Coincident", 1, 2, 2, 1))
sketch12.addConstraint(Sketcher.Constraint("Coincident", 2, 2, 3, 1))
sketch12.addConstraint(Sketcher.Constraint("Coincident", 3, 2, 0, 1))
sketch12.addConstraint(Sketcher.Constraint("Horizontal", 0))
sketch12.addConstraint(Sketcher.Constraint("Vertical", 1))
sketch12.addConstraint(Sketcher.Constraint("Horizontal", 2))
sketch12.addConstraint(Sketcher.Constraint("Vertical", 3))
sketch12.addConstraint(Sketcher.Constraint("PointOnObject", 0, 2, -2))
sketch12.addConstraint(Sketcher.Constraint("DistanceX", 0, 2, 0, 1, 2.0))
sketch12.addConstraint(Sketcher.Constraint("DistanceY", 1, 1, 1, 2, 16.0))
sketch12.addConstraint(Sketcher.Constraint("DistanceY", -1, 1, 0, 2, 7.5))
pocket9 = body.newObject("PartDesign::Pocket", "Pocket008")
pocket9.Profile = sketch12
pocket9.Length = 57.5
pocket9.Reversed = True

# Sketch on XZ plane
sketch13 = body.newObject("Sketcher::SketchObject", "Sketch012")
sketch13.AttachmentSupport = (doc.getObject("XZ_Plane"), [""])
sketch13.MapMode = "FlatFace"
sketch13.addGeometry(Part.LineSegment(V(-17.5, 4.7, 0), V(-17.5, 1.5, 0)), False)
sketch13.addGeometry(Part.LineSegment(V(-17.5, 1.5, 0), V(17.5, 1.5, 0)), False)
sketch13.addGeometry(Part.LineSegment(V(17.5, 1.5, 0), V(17.5, 4.7, 0)), False)
sketch13.addGeometry(Part.LineSegment(V(17.5, 4.7, 0), V(-17.5, 4.7, 0)), False)
sketch13.addConstraint(Sketcher.Constraint("Coincident", 0, 2, 1, 1))
sketch13.addConstraint(Sketcher.Constraint("Coincident", 1, 2, 2, 1))
sketch13.addConstraint(Sketcher.Constraint("Coincident", 2, 2, 3, 1))
sketch13.addConstraint(Sketcher.Constraint("Coincident", 3, 2, 0, 1))
sketch13.addConstraint(Sketcher.Constraint("Vertical", 0))
sketch13.addConstraint(Sketcher.Constraint("Horizontal", 1))
sketch13.addConstraint(Sketcher.Constraint("Vertical", 2))
sketch13.addConstraint(Sketcher.Constraint("Horizontal", 3))
sketch13.addConstraint(Sketcher.Constraint("DistanceX", 1, 1, 1, 2, 35.0))
sketch13.addConstraint(Sketcher.Constraint("DistanceY", 0, 2, 0, 1, 3.2))
sketch13.addConstraint(Sketcher.Constraint("DistanceX", 0, 2, -1, 1, 17.5))
sketch13.addConstraint(Sketcher.Constraint("DistanceY", -1, 1, 0, 2, 1.5))
pocket10 = body.newObject("PartDesign::Pocket", "Pocket009")
pocket10.Profile = sketch13
pocket10.Length = 0.7

# Sketch on YZ plane
sketch14 = body.newObject("Sketcher::SketchObject", "Sketch013")
sketch14.AttachmentSupport = (doc.getObject("YZ_Plane"), [""])
sketch14.MapMode = "FlatFace"
sketch14.AttachmentOffset = App.Placement(V(0, 0, -23.5), App.Rotation())
sketch14.addGeometry(Part.LineSegment(V(7.9, 4, 0), V(0, 4, 0)), False)
sketch14.addGeometry(Part.LineSegment(V(0, 4, 0), V(0, 7.5, 0)), False)
sketch14.addGeometry(Part.LineSegment(V(0, 7.5, 0), V(2, 7.5, 0)), False)
sketch14.addGeometry(Part.LineSegment(V(2, 7.5, 0), V(2, 23, 0)), False)
sketch14.addGeometry(Part.LineSegment(V(2, 23, 0), V(7.9, 23, 0)), False)
sketch14.addGeometry(Part.LineSegment(V(7.9, 23, 0), V(7.9, 4, 0)), False)
sketch14.addGeometry(Part.LineSegment(V(7.9, 29.5, 0), V(0, 29.5, 0)), False)
sketch14.addGeometry(Part.LineSegment(V(0, 29.5, 0), V(0, 35, 0)), False)
sketch14.addGeometry(Part.LineSegment(V(0, 35, 0), V(7.9, 35, 0)), False)
sketch14.addGeometry(Part.LineSegment(V(7.9, 35, 0), V(7.9, 29.5, 0)), False)
sketch14.addConstraint(Sketcher.Constraint("Coincident", 0, 2, 1, 1))
sketch14.addConstraint(Sketcher.Constraint("Coincident", 1, 2, 2, 1))
sketch14.addConstraint(Sketcher.Constraint("Coincident", 2, 2, 3, 1))
sketch14.addConstraint(Sketcher.Constraint("Coincident", 3, 2, 4, 1))
sketch14.addConstraint(Sketcher.Constraint("Coincident", 4, 2, 5, 1))
sketch14.addConstraint(Sketcher.Constraint("Coincident", 5, 2, 0, 1))
sketch14.addConstraint(Sketcher.Constraint("Coincident", 6, 2, 7, 1))
sketch14.addConstraint(Sketcher.Constraint("Coincident", 7, 2, 8, 1))
sketch14.addConstraint(Sketcher.Constraint("Coincident", 8, 2, 9, 1))
sketch14.addConstraint(Sketcher.Constraint("Coincident", 9, 2, 6, 1))
sketch14.addConstraint(Sketcher.Constraint("Horizontal", 0))
sketch14.addConstraint(Sketcher.Constraint("Vertical", 1))
sketch14.addConstraint(Sketcher.Constraint("Horizontal", 2))
sketch14.addConstraint(Sketcher.Constraint("Vertical", 3))
sketch14.addConstraint(Sketcher.Constraint("Horizontal", 4))
sketch14.addConstraint(Sketcher.Constraint("Vertical", 5))
sketch14.addConstraint(Sketcher.Constraint("Horizontal", 6))
sketch14.addConstraint(Sketcher.Constraint("Vertical", 7))
sketch14.addConstraint(Sketcher.Constraint("Horizontal", 8))
sketch14.addConstraint(Sketcher.Constraint("Vertical", 9))
sketch14.addConstraint(Sketcher.Constraint("PointOnObject", 0, 2, -2))
sketch14.addConstraint(Sketcher.Constraint("PointOnObject", 6, 2, -2))
sketch14.addConstraint(Sketcher.Constraint("Vertical", 5, 2, 8, 2))
sketch14.addConstraint(Sketcher.Constraint("DistanceX", 2, 1, 2, 2, 2.0))
sketch14.addConstraint(Sketcher.Constraint("DistanceY", 5, 2, 5, 1, 19.0))
sketch14.addConstraint(Sketcher.Constraint("DistanceX", 0, 2, 0, 1, 7.9))
sketch14.addConstraint(Sketcher.Constraint("DistanceY", 1, 1, 1, 2, 3.5))
sketch14.addConstraint(Sketcher.Constraint("DistanceY", 7, 1, 7, 2, 5.5))
sketch14.addConstraint(Sketcher.Constraint("DistanceY", -1, 1, 0, 2, 4.0))
sketch14.addConstraint(Sketcher.Constraint("DistanceY", -1, 1, 7, 2, 35.0))
pad4 = body.newObject("PartDesign::Pad", "Pad003")
pad4.Profile = sketch14
pad4.Length = 0.5
pad4.Reversed = True
doc.recompute()

chamfer3 = body.newObject("PartDesign::Chamfer", "Chamfer002")
chamfer3.Base = (pad4, edges_at(pad4, [(-23.75, 7.9, 29.5), (-23.75, 7.9, 23), (-23.75, 7.9, 4)]))
chamfer3.Size = 0.5

# Sketch on YZ plane
sketch15 = body.newObject("Sketcher::SketchObject", "Sketch014")
sketch15.AttachmentSupport = (doc.getObject("YZ_Plane"), [""])
sketch15.MapMode = "FlatFace"
sketch15.AttachmentOffset = App.Placement(V(0, 0, -23.5), App.Rotation())
sketch15.addGeometry(Part.LineSegment(V(6.5, 26.5, 0), V(0, 26.5, 0)), False)
sketch15.addGeometry(Part.LineSegment(V(0, 26.5, 0), V(0, 29.5, 0)), False)
sketch15.addGeometry(Part.LineSegment(V(0, 29.5, 0), V(6.5, 29.5, 0)), False)
sketch15.addGeometry(Part.LineSegment(V(6.5, 29.5, 0), V(6.5, 26.5, 0)), False)
sketch15.addConstraint(Sketcher.Constraint("Coincident", 0, 2, 1, 1))
sketch15.addConstraint(Sketcher.Constraint("Coincident", 1, 2, 2, 1))
sketch15.addConstraint(Sketcher.Constraint("Coincident", 2, 2, 3, 1))
sketch15.addConstraint(Sketcher.Constraint("Coincident", 3, 2, 0, 1))
sketch15.addConstraint(Sketcher.Constraint("Horizontal", 0))
sketch15.addConstraint(Sketcher.Constraint("Vertical", 1))
sketch15.addConstraint(Sketcher.Constraint("Horizontal", 2))
sketch15.addConstraint(Sketcher.Constraint("Vertical", 3))
sketch15.addConstraint(Sketcher.Constraint("PointOnObject", 0, 2, -2))
sketch15.addConstraint(Sketcher.Constraint("DistanceY", 1, 1, 1, 2, 3.0))
sketch15.addConstraint(Sketcher.Constraint("DistanceX", 0, 2, 0, 1, 6.5))
sketch15.addConstraint(Sketcher.Constraint("DistanceY", -1, 1, 0, 2, 26.5))
pocket11 = body.newObject("PartDesign::Pocket", "Pocket010")
pocket11.Profile = sketch15
pocket11.Length = 1
pocket11.Reversed = True
doc.recompute()

mirrored = body.newObject("PartDesign::Mirrored", "Mirrored")
mirrored.Originals = [pad4, pocket11]
mirrored.MirrorPlane = (doc.getObject("YZ_Plane"), [""])
body.Tip = mirrored
doc.recompute()

chamfer4 = body.newObject("PartDesign::Chamfer", "Chamfer003")
chamfer4.Base = (mirrored, edges_at(mirrored, [(23.75, 7.9, 4), (23.75, 7.9, 23), (23.75, 7.9, 29.5)]))
chamfer4.Size = 0.5

# Sketch on YZ plane
sketch16 = body.newObject("Sketcher::SketchObject", "Sketch015")
sketch16.AttachmentSupport = (doc.getObject("YZ_Plane"), [""])
sketch16.MapMode = "FlatFace"
sketch16.AttachmentOffset = App.Placement(V(0, 0, -20.6), App.Rotation())
sketch16.addGeometry(Part.LineSegment(V(7.9, 7.2, 0), V(7.9, 35, 0)), False)
sketch16.addGeometry(Part.LineSegment(V(7.9, 35, 0), V(3.9, 35, 0)), False)
sketch16.addGeometry(Part.LineSegment(V(3.9, 35, 0), V(3.9, 7.2, 0)), False)
sketch16.addGeometry(Part.LineSegment(V(3.9, 7.2, 0), V(5.15, 7.2, 0)), False)
sketch16.addGeometry(Part.LineSegment(V(5.15, 7.2, 0), V(5.15, 22.2, 0)), False)
sketch16.addGeometry(Part.LineSegment(V(5.15, 22.2, 0), V(6.65, 22.2, 0)), False)
sketch16.addGeometry(Part.LineSegment(V(6.65, 22.2, 0), V(6.65, 7.2, 0)), False)
sketch16.addGeometry(Part.LineSegment(V(6.65, 7.2, 0), V(7.9, 7.2, 0)), False)
sketch16.addConstraint(Sketcher.Constraint("Coincident", 0, 2, 1, 1))
sketch16.addConstraint(Sketcher.Constraint("Coincident", 1, 2, 2, 1))
sketch16.addConstraint(Sketcher.Constraint("Coincident", 2, 2, 3, 1))
sketch16.addConstraint(Sketcher.Constraint("Coincident", 3, 2, 4, 1))
sketch16.addConstraint(Sketcher.Constraint("Coincident", 4, 2, 5, 1))
sketch16.addConstraint(Sketcher.Constraint("Coincident", 5, 2, 6, 1))
sketch16.addConstraint(Sketcher.Constraint("Coincident", 6, 2, 7, 1))
sketch16.addConstraint(Sketcher.Constraint("Coincident", 7, 2, 0, 1))
sketch16.addConstraint(Sketcher.Constraint("Vertical", 0))
sketch16.addConstraint(Sketcher.Constraint("Horizontal", 1))
sketch16.addConstraint(Sketcher.Constraint("Vertical", 2))
sketch16.addConstraint(Sketcher.Constraint("Horizontal", 3))
sketch16.addConstraint(Sketcher.Constraint("Vertical", 4))
sketch16.addConstraint(Sketcher.Constraint("Horizontal", 5))
sketch16.addConstraint(Sketcher.Constraint("Vertical", 6))
sketch16.addConstraint(Sketcher.Constraint("Horizontal", 7))
sketch16.addConstraint(Sketcher.Constraint("Horizontal", 3, 2, 6, 2))
sketch16.addConstraint(Sketcher.Constraint("Equal", 3, 7))
sketch16.addConstraint(Sketcher.Constraint("DistanceX", 1, 2, 1, 1, 4.0))
sketch16.addConstraint(Sketcher.Constraint("DistanceY", 4, 1, 4, 2, 15.0))
sketch16.addConstraint(Sketcher.Constraint("DistanceX", 5, 1, 5, 2, 1.5))
sketch16.addConstraint(Sketcher.Constraint("DistanceY", 0, 1, 0, 2, 27.8))
sketch16.addConstraint(Sketcher.Constraint("DistanceY", -1, 1, 0, 2, 35.0))
sketch16.addConstraint(Sketcher.Constraint("DistanceX", -1, 1, 0, 2, 7.9))
pocket12 = body.newObject("PartDesign::Pocket", "Pocket011")
pocket12.Profile = sketch16
pocket12.Length = 1
doc.recompute()

chamfer5 = body.newObject("PartDesign::Chamfer", "Chamfer004")
chamfer5.Base = (pocket12, edges_at(pocket12, [(-20.6, 5.9, 22.2)]))
chamfer5.Size = 0.5
doc.recompute()

mirrored2 = body.newObject("PartDesign::Mirrored", "Mirrored001")
mirrored2.Originals = [pocket12]
mirrored2.MirrorPlane = (doc.getObject("YZ_Plane"), [""])
body.Tip = mirrored2
doc.recompute()

chamfer6 = body.newObject("PartDesign::Chamfer", "Chamfer005")
chamfer6.Base = (mirrored2, edges_at(mirrored2, [(20.6, 5.9, 22.2)]))
chamfer6.Size = 0.5

# Sketch on XY plane
sketch17 = body.newObject("Sketcher::SketchObject", "Sketch016")
sketch17.AttachmentSupport = (doc.getObject("XY_Plane"), [""])
sketch17.MapMode = "FlatFace"
sketch17.AttachmentOffset = App.Placement(V(0, 0, 35), App.Rotation())
sketch17.addGeometry(Part.LineSegment(V(-22.2, 7.9, 0), V(-22.2, 3.9, 0)), False)
sketch17.addGeometry(Part.LineSegment(V(-22.2, 3.9, 0), V(-21.760118, 3.9, 0)), False)
sketch17.addGeometry(Part.LineSegment(V(-21.760118, 3.9, 0), V(-21.760118, 7.9, 0)), False)
sketch17.addGeometry(Part.LineSegment(V(-21.760118, 7.9, 0), V(-22.2, 7.9, 0)), False)
sketch17.addGeometry(Part.LineSegment(V(21.760118, 7.9, 0), V(21.760118, 3.9, 0)), False)
sketch17.addGeometry(Part.LineSegment(V(21.760118, 3.9, 0), V(22.2, 3.9, 0)), False)
sketch17.addGeometry(Part.LineSegment(V(22.2, 3.9, 0), V(22.2, 7.9, 0)), False)
sketch17.addGeometry(Part.LineSegment(V(22.2, 7.9, 0), V(21.760118, 7.9, 0)), False)
sketch17.addConstraint(Sketcher.Constraint("Coincident", 0, 2, 1, 1))
sketch17.addConstraint(Sketcher.Constraint("Coincident", 1, 2, 2, 1))
sketch17.addConstraint(Sketcher.Constraint("Coincident", 2, 2, 3, 1))
sketch17.addConstraint(Sketcher.Constraint("Coincident", 3, 2, 0, 1))
sketch17.addConstraint(Sketcher.Constraint("Coincident", 4, 2, 5, 1))
sketch17.addConstraint(Sketcher.Constraint("Coincident", 5, 2, 6, 1))
sketch17.addConstraint(Sketcher.Constraint("Coincident", 6, 2, 7, 1))
sketch17.addConstraint(Sketcher.Constraint("Coincident", 7, 2, 4, 1))
sketch17.addConstraint(Sketcher.Constraint("Vertical", 0))
sketch17.addConstraint(Sketcher.Constraint("Horizontal", 1))
sketch17.addConstraint(Sketcher.Constraint("Vertical", 2))
sketch17.addConstraint(Sketcher.Constraint("Horizontal", 3))
sketch17.addConstraint(Sketcher.Constraint("Vertical", 4))
sketch17.addConstraint(Sketcher.Constraint("Horizontal", 5))
sketch17.addConstraint(Sketcher.Constraint("Vertical", 6))
sketch17.addConstraint(Sketcher.Constraint("Horizontal", 7))
sketch17.addConstraint(Sketcher.Constraint("Symmetric", 1, 2, 4, 2, -2))
sketch17.addConstraint(Sketcher.Constraint("Symmetric", 3, 2, 6, 2, -2))
sketch17.addConstraint(Sketcher.Constraint("DistanceY", 0, 2, 0, 1, 4.0))
sketch17.addConstraint(Sketcher.Constraint("DistanceX", 0, 2, -1, 1, 22.2))
sketch17.addConstraint(Sketcher.Constraint("DistanceY", -1, 1, 0, 2, 3.9))
sketch17.addConstraint(Sketcher.Constraint("DistanceX", 1, 1, 1, 2, 0.439882))
pocket13 = body.newObject("PartDesign::Pocket", "Pocket012")
pocket13.Profile = sketch17
pocket13.Length = 22

# Sketch on YZ plane
sketch18 = body.newObject("Sketcher::SketchObject", "Sketch017")
sketch18.AttachmentSupport = (doc.getObject("YZ_Plane"), [""])
sketch18.MapMode = "FlatFace"
sketch18.AttachmentOffset = App.Placement(V(0, 0, -21.6), App.Rotation())
sketch18.addGeometry(Part.LineSegment(V(7.3, 35, 0), V(4.5, 35, 0)), False)
sketch18.addGeometry(Part.LineSegment(V(4.5, 35, 0), V(4.5, 24.303956, 0)), False)
sketch18.addGeometry(Part.LineSegment(V(4.5, 24.303956, 0), V(7.3, 24.303956, 0)), False)
sketch18.addGeometry(Part.LineSegment(V(7.3, 24.303956, 0), V(7.3, 35, 0)), False)
sketch18.addConstraint(Sketcher.Constraint("Coincident", 0, 2, 1, 1))
sketch18.addConstraint(Sketcher.Constraint("Coincident", 1, 2, 2, 1))
sketch18.addConstraint(Sketcher.Constraint("Coincident", 2, 2, 3, 1))
sketch18.addConstraint(Sketcher.Constraint("Coincident", 3, 2, 0, 1))
sketch18.addConstraint(Sketcher.Constraint("Horizontal", 0))
sketch18.addConstraint(Sketcher.Constraint("Vertical", 1))
sketch18.addConstraint(Sketcher.Constraint("Horizontal", 2))
sketch18.addConstraint(Sketcher.Constraint("Vertical", 3))
sketch18.addConstraint(Sketcher.Constraint("DistanceX", 0, 2, 0, 1, 2.8))
sketch18.addConstraint(Sketcher.Constraint("DistanceY", -1, 1, 0, 2, 35.0))
sketch18.addConstraint(Sketcher.Constraint("DistanceX", -1, 1, 0, 2, 4.5))
sketch18.addConstraint(Sketcher.Constraint("DistanceY", 1, 2, 1, 1, 10.696044))
pocket14 = body.newObject("PartDesign::Pocket", "Pocket013")
pocket14.Profile = sketch18
pocket14.Length = 0.2

# Sketch on YZ plane
sketch19 = body.newObject("Sketcher::SketchObject", "Sketch018")
sketch19.AttachmentSupport = (doc.getObject("YZ_Plane"), [""])
sketch19.MapMode = "FlatFace"
sketch19.AttachmentOffset = App.Placement(V(0, 0, -21.6), App.Rotation())
sketch19.addGeometry(Part.LineSegment(V(7.9, 35, 0), V(3.9, 35, 0)), False)
sketch19.addGeometry(Part.LineSegment(V(3.9, 35, 0), V(3.9, 33, 0)), False)
sketch19.addGeometry(Part.LineSegment(V(3.9, 33, 0), V(7.9, 33, 0)), False)
sketch19.addGeometry(Part.LineSegment(V(7.9, 33, 0), V(7.9, 35, 0)), False)
sketch19.addConstraint(Sketcher.Constraint("Coincident", 0, 2, 1, 1))
sketch19.addConstraint(Sketcher.Constraint("Coincident", 1, 2, 2, 1))
sketch19.addConstraint(Sketcher.Constraint("Coincident", 2, 2, 3, 1))
sketch19.addConstraint(Sketcher.Constraint("Coincident", 3, 2, 0, 1))
sketch19.addConstraint(Sketcher.Constraint("Horizontal", 0))
sketch19.addConstraint(Sketcher.Constraint("Vertical", 1))
sketch19.addConstraint(Sketcher.Constraint("Horizontal", 2))
sketch19.addConstraint(Sketcher.Constraint("Vertical", 3))
sketch19.addConstraint(Sketcher.Constraint("DistanceX", 0, 2, 0, 1, 4.0))
sketch19.addConstraint(Sketcher.Constraint("DistanceY", 1, 2, 1, 1, 2.0))
sketch19.addConstraint(Sketcher.Constraint("DistanceY", -1, 1, 0, 2, 35.0))
sketch19.addConstraint(Sketcher.Constraint("DistanceX", -1, 1, 0, 2, 3.9))
pocket15 = body.newObject("PartDesign::Pocket", "Pocket014")
pocket15.Profile = sketch19
pocket15.Length = 0.2
doc.recompute()

mirrored3 = body.newObject("PartDesign::Mirrored", "Mirrored002")
mirrored3.Originals = [pocket14, pocket15]
mirrored3.MirrorPlane = (doc.getObject("YZ_Plane"), [""])
body.Tip = mirrored3

# Sketch on YZ plane
sketch20 = body.newObject("Sketcher::SketchObject", "Sketch019")
sketch20.AttachmentSupport = (doc.getObject("YZ_Plane"), [""])
sketch20.MapMode = "FlatFace"
sketch20.AttachmentOffset = App.Placement(V(0, 0, 24), App.Rotation())
sketch20.addGeometry(Part.LineSegment(V(1.4, 38.500003, 0), V(-1.667418, 38.500003, 0)), False)
sketch20.addGeometry(Part.LineSegment(V(-1.667418, 38.500003, 0), V(-1.667418, -4.365197, 0)), False)
sketch20.addGeometry(Part.LineSegment(V(-1.667418, -4.365197, 0), V(1.4, -4.365197, 0)), False)
sketch20.addGeometry(Part.LineSegment(V(1.4, -4.365197, 0), V(1.4, 38.500003, 0)), False)
sketch20.addConstraint(Sketcher.Constraint("Coincident", 0, 2, 1, 1))
sketch20.addConstraint(Sketcher.Constraint("Coincident", 1, 2, 2, 1))
sketch20.addConstraint(Sketcher.Constraint("Coincident", 2, 2, 3, 1))
sketch20.addConstraint(Sketcher.Constraint("Coincident", 3, 2, 0, 1))
sketch20.addConstraint(Sketcher.Constraint("Horizontal", 0))
sketch20.addConstraint(Sketcher.Constraint("Vertical", 1))
sketch20.addConstraint(Sketcher.Constraint("Horizontal", 2))
sketch20.addConstraint(Sketcher.Constraint("Vertical", 3))
sketch20.addConstraint(Sketcher.Constraint("DistanceX", -1, 1, 2, 2, 1.4))
sketch20.addConstraint(Sketcher.Constraint("DistanceY", 1, 2, 1, 1, 42.865199))
sketch20.addConstraint(Sketcher.Constraint("DistanceX", 0, 2, 0, 1, 3.067418))
sketch20.addConstraint(Sketcher.Constraint("DistanceY", -1, 1, 0, 2, 38.500003))
pocket16 = body.newObject("PartDesign::Pocket", "Pocket015")
pocket16.Profile = sketch20
pocket16.Length = 58

doc.recompute()
